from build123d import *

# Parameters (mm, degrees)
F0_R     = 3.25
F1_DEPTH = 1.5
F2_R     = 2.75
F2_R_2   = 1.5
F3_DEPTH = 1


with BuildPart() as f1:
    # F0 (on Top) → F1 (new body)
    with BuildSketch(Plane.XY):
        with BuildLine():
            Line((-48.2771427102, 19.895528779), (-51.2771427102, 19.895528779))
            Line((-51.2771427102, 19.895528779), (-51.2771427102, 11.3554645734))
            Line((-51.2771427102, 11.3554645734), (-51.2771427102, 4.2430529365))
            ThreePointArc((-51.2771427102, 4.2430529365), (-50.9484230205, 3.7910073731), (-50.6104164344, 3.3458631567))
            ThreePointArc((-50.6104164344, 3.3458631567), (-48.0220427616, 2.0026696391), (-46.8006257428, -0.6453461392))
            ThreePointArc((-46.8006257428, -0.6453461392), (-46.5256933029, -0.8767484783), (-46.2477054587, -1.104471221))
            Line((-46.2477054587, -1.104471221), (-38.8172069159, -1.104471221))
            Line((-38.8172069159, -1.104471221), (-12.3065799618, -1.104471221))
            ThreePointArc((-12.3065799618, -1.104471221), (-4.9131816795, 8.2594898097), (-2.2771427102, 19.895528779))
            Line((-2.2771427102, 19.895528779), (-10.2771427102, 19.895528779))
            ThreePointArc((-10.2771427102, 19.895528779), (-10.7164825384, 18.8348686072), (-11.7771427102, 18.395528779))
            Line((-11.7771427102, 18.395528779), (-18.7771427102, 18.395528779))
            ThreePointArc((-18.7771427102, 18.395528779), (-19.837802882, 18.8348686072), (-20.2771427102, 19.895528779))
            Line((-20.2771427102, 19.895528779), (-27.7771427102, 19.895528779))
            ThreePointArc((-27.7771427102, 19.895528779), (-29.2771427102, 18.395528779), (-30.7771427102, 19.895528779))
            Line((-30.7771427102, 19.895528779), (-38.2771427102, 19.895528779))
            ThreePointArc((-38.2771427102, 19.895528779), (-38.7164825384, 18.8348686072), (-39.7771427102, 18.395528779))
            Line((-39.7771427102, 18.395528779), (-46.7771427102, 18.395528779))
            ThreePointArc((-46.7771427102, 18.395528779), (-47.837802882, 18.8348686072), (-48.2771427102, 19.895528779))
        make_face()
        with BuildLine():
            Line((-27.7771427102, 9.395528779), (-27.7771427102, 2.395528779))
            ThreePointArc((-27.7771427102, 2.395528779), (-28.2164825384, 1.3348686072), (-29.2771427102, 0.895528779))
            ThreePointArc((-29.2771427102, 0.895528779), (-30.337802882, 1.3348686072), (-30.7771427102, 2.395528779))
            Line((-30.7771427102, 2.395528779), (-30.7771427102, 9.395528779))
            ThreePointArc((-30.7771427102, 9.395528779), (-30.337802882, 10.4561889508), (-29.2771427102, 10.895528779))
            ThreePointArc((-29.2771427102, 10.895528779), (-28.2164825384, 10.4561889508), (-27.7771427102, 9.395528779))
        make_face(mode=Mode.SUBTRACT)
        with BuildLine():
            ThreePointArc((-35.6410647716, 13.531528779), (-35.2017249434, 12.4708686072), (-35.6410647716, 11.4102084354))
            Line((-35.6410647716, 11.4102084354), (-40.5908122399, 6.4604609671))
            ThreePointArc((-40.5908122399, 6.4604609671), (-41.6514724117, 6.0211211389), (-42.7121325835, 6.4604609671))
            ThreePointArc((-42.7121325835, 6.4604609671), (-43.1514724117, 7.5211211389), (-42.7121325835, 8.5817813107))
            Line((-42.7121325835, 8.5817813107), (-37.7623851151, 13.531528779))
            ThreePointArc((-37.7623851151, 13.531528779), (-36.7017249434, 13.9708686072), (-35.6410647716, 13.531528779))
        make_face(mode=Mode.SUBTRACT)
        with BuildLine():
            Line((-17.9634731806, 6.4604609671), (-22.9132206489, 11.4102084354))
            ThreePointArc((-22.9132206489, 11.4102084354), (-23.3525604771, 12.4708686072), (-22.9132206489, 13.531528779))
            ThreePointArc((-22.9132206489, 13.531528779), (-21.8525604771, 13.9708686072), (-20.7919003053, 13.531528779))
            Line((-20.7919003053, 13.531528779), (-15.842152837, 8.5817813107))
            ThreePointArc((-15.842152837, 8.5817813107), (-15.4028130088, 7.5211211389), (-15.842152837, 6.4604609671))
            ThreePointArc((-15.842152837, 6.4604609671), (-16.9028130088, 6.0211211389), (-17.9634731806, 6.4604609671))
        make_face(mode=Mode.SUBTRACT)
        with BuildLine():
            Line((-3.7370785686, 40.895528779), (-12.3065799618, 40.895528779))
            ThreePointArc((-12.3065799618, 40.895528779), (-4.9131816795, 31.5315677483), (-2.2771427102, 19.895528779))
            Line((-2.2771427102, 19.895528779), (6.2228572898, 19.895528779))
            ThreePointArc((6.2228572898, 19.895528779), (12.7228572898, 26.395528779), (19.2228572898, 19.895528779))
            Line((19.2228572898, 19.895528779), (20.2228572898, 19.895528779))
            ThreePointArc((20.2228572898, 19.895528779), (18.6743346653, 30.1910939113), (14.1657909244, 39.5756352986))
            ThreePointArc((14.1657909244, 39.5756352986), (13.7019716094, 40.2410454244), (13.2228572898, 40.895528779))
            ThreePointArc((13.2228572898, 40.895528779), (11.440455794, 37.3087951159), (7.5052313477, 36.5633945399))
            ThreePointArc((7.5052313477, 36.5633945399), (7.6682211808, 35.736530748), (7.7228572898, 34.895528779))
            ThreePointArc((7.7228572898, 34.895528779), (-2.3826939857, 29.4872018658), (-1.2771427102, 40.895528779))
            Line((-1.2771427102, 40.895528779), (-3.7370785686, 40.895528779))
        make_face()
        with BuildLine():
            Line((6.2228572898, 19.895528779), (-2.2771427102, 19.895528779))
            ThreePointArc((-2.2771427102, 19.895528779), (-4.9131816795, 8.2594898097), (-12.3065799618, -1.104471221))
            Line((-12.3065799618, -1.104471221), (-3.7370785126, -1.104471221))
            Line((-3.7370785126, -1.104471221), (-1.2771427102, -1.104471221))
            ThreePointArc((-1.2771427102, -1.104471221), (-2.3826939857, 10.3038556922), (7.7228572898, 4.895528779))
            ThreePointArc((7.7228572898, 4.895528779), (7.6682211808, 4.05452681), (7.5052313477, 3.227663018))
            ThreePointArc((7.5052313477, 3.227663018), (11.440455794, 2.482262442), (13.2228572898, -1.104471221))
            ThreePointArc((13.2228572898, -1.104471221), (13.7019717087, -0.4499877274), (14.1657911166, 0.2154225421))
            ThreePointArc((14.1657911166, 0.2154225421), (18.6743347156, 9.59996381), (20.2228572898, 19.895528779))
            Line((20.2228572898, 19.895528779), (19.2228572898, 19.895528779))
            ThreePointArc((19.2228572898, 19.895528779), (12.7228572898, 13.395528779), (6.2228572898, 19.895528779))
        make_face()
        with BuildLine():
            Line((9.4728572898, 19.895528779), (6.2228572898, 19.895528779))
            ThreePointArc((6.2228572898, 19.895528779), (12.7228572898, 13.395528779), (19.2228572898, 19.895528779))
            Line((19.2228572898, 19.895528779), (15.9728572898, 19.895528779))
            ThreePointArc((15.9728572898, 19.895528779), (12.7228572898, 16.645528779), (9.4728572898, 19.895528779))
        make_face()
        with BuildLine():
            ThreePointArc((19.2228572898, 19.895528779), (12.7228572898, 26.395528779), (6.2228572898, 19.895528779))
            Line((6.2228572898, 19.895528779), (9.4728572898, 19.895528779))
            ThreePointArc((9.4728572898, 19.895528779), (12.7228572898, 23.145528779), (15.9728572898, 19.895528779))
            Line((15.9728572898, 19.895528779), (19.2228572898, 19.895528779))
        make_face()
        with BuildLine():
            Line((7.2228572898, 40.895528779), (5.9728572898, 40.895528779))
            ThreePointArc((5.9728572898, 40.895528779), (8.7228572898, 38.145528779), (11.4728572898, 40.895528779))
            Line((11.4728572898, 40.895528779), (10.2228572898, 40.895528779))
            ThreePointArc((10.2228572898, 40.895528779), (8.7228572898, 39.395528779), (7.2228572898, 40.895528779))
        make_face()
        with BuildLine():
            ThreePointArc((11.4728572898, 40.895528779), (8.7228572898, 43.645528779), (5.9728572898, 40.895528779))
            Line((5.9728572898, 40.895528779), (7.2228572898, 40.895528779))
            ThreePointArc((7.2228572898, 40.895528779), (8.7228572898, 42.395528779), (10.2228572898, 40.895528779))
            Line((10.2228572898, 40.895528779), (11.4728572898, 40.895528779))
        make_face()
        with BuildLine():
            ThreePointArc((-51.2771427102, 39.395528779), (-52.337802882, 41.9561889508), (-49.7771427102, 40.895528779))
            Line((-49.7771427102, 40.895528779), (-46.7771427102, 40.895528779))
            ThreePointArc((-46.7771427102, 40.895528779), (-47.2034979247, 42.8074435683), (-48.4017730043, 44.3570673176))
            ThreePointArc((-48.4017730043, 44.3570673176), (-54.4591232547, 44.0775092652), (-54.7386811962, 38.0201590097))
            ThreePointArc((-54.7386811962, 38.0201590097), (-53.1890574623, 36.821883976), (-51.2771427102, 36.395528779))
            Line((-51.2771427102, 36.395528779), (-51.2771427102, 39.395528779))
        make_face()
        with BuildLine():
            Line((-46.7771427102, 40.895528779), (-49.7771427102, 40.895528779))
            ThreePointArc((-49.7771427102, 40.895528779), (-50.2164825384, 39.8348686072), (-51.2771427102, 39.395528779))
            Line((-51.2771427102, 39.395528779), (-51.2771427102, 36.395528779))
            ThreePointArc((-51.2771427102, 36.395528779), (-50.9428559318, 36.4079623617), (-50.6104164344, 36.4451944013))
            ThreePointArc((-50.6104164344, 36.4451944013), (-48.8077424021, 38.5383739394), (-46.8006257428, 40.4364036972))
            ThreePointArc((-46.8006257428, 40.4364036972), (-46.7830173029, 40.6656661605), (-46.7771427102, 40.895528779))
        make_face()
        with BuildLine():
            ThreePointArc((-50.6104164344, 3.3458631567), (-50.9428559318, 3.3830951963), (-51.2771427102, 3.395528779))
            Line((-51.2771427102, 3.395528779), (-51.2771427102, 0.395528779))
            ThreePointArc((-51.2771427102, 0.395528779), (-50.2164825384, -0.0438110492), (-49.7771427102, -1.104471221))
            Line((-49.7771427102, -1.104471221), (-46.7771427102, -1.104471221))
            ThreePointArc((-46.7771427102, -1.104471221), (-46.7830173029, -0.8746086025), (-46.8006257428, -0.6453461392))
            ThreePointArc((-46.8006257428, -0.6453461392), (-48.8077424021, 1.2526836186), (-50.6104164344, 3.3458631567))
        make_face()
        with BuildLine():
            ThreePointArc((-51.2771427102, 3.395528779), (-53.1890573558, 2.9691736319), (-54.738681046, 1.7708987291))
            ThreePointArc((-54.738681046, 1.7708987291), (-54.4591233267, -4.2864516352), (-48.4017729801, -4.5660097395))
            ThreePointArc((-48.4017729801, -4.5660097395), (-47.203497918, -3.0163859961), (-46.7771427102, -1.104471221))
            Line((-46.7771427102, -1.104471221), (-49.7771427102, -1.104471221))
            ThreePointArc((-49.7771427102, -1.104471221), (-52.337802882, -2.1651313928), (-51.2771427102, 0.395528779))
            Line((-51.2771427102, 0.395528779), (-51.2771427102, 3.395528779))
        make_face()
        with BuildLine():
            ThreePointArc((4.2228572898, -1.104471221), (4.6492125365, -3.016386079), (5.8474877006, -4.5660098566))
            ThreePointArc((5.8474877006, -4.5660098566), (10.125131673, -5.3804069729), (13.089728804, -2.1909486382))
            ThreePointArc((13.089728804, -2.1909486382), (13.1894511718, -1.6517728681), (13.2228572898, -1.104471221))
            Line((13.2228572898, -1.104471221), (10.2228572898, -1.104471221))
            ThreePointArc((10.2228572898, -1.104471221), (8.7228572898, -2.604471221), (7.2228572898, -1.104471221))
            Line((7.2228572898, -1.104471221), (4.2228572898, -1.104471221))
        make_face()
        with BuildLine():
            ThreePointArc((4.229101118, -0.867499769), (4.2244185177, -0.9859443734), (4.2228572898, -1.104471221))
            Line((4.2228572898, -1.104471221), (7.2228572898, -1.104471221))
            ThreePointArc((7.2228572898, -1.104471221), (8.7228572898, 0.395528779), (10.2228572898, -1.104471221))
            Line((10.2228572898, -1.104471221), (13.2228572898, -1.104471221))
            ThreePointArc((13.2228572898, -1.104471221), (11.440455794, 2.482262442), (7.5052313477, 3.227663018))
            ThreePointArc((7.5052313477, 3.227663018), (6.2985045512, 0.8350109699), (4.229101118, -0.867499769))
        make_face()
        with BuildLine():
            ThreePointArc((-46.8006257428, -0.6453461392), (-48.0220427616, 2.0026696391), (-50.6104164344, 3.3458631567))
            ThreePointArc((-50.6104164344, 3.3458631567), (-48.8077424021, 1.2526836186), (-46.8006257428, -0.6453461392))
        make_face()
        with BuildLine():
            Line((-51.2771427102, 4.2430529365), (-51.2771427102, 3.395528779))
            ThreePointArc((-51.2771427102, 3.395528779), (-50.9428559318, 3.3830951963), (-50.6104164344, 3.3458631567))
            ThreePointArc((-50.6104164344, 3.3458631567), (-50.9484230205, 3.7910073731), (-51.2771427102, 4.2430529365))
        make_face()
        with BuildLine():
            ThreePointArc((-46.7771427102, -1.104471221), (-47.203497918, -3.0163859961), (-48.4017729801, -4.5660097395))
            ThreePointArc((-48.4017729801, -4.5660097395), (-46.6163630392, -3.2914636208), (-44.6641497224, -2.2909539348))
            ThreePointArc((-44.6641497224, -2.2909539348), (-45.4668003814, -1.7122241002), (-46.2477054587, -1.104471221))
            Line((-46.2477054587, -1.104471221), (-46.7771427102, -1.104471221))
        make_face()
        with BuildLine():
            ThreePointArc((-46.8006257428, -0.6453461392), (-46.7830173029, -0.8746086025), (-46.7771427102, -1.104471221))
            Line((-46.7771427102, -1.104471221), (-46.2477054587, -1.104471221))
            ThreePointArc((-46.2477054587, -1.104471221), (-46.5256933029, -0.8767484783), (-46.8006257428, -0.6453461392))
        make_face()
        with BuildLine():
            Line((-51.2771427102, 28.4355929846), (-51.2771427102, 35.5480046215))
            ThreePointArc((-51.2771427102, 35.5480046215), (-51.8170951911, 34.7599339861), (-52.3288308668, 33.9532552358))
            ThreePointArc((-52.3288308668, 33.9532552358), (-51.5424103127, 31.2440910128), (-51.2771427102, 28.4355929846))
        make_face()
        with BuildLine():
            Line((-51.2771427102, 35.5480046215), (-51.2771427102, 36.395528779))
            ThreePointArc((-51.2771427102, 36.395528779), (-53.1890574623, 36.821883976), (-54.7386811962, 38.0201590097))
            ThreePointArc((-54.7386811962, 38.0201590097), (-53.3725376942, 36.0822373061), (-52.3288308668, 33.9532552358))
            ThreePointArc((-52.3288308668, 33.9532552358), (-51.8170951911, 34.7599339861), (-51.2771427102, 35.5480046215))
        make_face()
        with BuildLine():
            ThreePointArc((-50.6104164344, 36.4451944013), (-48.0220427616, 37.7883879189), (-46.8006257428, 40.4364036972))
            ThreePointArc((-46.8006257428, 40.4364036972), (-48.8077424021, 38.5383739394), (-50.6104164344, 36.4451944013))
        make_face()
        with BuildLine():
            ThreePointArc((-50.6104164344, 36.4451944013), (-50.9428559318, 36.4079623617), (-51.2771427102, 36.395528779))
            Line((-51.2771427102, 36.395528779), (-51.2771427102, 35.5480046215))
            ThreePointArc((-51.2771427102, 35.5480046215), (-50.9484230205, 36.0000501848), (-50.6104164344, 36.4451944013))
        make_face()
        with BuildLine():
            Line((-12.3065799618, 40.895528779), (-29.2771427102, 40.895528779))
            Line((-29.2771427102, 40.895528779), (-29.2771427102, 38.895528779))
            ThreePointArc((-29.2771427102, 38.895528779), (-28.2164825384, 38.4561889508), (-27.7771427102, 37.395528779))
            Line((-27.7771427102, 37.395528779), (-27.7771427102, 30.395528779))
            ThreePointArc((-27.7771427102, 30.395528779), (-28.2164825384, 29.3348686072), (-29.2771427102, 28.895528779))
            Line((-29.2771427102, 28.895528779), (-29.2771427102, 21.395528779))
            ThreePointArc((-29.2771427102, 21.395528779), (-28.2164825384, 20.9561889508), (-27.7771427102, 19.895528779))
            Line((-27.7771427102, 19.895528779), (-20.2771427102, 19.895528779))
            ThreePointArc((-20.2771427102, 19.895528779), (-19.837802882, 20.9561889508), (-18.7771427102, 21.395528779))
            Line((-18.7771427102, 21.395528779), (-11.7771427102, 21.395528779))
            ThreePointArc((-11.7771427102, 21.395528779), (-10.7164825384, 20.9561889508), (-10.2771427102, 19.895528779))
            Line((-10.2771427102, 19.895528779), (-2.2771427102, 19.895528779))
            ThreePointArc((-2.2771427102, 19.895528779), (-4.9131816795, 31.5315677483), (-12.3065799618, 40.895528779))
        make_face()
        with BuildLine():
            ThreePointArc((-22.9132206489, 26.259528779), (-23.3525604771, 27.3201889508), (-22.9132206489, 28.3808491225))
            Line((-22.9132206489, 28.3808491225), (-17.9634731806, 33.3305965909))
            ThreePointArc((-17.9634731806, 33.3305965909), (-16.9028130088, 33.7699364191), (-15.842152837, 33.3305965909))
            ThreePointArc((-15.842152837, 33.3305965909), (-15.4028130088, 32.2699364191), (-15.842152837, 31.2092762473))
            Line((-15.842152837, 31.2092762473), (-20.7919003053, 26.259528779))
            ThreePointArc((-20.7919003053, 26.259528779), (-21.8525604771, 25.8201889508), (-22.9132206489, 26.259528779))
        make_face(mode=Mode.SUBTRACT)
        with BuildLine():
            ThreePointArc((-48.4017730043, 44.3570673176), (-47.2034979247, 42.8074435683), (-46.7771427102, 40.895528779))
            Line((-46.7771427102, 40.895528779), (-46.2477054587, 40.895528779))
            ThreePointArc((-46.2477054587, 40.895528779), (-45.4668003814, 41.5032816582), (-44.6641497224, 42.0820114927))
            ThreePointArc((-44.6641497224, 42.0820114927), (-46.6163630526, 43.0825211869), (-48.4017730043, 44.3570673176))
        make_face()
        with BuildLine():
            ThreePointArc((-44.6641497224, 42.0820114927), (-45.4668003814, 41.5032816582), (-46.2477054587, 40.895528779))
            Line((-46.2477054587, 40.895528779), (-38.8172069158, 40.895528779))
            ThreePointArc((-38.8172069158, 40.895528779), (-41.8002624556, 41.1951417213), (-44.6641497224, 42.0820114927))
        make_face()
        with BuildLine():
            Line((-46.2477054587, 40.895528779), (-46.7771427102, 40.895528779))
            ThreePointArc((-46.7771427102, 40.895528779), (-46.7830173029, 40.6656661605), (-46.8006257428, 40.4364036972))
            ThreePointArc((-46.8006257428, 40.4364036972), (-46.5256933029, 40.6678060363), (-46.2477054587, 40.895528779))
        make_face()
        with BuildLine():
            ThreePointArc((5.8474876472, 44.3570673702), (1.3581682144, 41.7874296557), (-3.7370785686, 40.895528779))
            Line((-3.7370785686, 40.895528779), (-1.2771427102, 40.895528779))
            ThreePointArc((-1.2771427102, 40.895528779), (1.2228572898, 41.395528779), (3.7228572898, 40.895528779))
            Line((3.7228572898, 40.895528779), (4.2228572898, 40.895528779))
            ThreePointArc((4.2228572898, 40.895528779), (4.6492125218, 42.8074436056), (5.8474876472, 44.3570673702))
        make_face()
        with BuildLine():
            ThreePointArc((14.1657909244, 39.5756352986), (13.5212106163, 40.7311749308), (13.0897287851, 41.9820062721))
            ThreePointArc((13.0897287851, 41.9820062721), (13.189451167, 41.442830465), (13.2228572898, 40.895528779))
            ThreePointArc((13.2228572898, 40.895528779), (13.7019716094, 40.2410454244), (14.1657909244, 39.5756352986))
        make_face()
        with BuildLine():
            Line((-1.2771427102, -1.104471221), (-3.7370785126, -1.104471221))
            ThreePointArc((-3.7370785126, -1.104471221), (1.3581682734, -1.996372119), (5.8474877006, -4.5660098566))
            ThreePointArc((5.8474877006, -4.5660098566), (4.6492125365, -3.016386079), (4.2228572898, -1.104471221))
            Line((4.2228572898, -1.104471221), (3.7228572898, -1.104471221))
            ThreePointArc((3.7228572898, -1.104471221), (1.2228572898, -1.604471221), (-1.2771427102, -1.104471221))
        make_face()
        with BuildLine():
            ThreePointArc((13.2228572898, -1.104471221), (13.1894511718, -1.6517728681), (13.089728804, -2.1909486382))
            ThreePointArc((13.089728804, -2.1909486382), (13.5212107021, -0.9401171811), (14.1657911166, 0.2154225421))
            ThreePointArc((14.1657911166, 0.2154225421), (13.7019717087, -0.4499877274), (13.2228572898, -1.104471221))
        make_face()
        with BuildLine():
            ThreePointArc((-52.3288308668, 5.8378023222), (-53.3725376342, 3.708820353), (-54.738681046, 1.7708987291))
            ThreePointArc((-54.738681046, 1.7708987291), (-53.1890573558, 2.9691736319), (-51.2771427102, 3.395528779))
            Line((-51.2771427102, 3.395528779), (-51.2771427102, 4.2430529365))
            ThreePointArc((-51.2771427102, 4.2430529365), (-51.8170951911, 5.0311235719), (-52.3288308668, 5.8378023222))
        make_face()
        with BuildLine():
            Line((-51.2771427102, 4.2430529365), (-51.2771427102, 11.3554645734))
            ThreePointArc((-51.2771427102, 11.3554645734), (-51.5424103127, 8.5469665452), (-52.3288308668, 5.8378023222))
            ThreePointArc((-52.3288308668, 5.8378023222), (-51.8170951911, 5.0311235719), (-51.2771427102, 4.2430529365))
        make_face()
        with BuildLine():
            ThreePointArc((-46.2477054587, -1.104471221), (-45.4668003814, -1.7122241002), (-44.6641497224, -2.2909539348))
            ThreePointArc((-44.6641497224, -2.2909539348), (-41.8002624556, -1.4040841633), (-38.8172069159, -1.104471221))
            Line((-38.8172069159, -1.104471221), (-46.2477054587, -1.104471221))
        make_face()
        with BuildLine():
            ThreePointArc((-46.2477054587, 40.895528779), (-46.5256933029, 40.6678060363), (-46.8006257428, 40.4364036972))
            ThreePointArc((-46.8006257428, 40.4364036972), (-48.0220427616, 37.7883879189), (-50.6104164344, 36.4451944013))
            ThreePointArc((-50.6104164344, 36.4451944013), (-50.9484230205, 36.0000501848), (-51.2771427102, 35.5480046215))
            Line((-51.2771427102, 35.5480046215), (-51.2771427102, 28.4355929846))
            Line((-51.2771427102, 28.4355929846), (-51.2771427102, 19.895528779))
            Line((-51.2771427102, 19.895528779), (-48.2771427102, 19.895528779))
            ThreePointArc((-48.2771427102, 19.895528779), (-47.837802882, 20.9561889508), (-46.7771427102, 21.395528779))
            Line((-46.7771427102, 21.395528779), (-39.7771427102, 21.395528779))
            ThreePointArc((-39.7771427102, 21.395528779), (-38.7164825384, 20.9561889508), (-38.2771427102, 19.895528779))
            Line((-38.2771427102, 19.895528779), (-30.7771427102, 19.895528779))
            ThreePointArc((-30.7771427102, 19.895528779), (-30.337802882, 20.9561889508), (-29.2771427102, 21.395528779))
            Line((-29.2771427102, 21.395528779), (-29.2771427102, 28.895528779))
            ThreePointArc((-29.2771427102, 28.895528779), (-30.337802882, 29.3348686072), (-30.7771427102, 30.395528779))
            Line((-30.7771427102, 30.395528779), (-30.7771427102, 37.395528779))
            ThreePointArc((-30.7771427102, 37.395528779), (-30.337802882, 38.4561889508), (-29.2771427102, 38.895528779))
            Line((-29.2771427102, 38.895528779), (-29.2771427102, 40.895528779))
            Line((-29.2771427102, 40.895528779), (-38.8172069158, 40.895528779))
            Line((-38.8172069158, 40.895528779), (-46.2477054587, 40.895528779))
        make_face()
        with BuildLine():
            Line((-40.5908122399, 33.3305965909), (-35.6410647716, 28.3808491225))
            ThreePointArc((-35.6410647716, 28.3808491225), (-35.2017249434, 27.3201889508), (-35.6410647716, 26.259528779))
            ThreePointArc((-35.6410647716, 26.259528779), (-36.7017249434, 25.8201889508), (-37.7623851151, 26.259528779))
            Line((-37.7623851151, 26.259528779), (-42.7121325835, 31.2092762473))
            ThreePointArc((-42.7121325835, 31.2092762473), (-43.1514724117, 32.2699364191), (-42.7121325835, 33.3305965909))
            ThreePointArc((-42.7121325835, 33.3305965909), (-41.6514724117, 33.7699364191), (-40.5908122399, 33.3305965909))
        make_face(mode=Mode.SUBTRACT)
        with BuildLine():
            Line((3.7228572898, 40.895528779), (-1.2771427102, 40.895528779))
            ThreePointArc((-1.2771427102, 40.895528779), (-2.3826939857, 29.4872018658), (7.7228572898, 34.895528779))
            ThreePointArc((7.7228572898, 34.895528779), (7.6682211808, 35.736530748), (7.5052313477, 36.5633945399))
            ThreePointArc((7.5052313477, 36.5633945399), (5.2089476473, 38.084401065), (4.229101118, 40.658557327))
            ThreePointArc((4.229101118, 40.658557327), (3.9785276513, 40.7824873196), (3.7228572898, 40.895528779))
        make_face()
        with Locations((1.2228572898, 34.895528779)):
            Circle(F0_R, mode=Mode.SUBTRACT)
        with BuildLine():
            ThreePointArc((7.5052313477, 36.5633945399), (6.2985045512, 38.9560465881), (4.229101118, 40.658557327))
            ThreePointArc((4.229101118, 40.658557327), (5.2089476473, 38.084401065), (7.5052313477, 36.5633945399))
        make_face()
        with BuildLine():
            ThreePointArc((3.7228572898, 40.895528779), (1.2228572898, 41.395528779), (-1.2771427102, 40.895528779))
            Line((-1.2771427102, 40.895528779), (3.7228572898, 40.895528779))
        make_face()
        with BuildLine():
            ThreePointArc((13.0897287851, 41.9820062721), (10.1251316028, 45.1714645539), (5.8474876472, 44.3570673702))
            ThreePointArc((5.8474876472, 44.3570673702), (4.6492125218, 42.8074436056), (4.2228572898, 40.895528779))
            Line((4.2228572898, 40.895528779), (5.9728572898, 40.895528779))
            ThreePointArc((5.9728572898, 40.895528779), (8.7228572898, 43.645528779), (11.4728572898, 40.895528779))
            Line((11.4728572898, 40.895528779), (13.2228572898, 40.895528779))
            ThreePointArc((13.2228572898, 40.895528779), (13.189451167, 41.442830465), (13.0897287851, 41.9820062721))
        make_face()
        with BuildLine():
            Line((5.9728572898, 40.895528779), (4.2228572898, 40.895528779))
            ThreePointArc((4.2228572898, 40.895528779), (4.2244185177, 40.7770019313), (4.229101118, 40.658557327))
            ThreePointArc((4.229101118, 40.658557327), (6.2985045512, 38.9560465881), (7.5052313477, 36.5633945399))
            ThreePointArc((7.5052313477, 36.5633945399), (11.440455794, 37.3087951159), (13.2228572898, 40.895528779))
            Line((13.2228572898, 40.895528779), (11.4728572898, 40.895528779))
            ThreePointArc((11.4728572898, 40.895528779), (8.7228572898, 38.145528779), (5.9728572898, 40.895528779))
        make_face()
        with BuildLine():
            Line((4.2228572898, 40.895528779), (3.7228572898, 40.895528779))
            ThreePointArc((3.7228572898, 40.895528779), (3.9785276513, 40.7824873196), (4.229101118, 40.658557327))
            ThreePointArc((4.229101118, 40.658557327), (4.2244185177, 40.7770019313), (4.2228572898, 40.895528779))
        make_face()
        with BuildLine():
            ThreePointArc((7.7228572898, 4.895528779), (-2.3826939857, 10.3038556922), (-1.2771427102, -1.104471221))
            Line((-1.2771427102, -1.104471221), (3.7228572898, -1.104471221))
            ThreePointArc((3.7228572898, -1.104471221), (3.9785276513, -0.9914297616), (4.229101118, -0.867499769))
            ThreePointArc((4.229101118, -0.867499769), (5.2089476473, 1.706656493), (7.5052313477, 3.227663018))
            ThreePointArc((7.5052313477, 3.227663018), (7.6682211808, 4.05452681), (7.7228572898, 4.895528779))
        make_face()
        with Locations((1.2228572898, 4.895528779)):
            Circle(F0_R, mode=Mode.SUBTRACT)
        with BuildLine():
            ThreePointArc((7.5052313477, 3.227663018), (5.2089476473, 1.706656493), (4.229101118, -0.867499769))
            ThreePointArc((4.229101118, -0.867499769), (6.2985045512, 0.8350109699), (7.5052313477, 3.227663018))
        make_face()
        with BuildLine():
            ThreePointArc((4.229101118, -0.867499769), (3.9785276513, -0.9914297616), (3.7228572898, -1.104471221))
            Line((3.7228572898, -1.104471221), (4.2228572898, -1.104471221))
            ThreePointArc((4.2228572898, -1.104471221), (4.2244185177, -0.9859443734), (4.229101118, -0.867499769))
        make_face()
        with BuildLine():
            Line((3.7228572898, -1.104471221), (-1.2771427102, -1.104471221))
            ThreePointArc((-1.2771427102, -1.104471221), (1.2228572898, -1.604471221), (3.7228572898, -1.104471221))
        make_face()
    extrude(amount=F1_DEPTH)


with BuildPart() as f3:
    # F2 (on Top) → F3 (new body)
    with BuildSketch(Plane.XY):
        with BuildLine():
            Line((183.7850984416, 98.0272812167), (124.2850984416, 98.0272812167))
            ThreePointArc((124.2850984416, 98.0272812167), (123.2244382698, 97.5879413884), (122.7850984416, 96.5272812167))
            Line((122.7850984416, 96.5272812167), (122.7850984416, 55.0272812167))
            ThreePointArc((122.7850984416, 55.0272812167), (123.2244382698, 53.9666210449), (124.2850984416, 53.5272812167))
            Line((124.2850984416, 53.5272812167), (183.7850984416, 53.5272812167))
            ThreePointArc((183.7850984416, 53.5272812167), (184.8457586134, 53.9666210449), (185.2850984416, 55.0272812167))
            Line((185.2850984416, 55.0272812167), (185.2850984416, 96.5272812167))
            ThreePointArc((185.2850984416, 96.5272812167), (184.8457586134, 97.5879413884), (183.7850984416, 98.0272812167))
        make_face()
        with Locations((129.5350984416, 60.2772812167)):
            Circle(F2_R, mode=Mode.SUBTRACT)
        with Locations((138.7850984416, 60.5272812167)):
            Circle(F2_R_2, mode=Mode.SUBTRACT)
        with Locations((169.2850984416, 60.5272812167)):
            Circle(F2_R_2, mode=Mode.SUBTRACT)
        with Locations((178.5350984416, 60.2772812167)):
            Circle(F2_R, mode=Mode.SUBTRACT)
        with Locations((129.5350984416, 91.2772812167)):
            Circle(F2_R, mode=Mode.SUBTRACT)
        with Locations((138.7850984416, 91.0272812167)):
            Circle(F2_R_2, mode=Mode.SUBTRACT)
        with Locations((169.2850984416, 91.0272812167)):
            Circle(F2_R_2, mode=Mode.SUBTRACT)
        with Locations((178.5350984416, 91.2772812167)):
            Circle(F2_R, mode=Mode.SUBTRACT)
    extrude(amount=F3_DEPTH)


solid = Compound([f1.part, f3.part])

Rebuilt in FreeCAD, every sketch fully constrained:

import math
import FreeCAD as App
import Part
import Sketcher
from FreeCAD import Vector
Q = App.Units.Quantity

doc = App.newDocument("Part")
body = doc.addObject("PartDesign::Body", "Body")

sketch1 = body.newObject("Sketcher::SketchObject", "Sketch")
sketch1.AttachmentSupport = (doc.getObject("XY_Plane"), [""])
sketch1.MapMode = "FlatFace"
sketch1.addGeometry([
    Part.ArcOfCircle(Part.Circle(Vector(-3.7, 55.9, 0), Vector(0, 0, 1), 15), math.radians(-90), math.radians(-50)),
    Part.LineSegment(Vector(-3.7, 40.9, 0), Vector(-38.8, 40.9, 0)),
    Part.ArcOfCircle(Part.Circle(Vector(-38.8, 55.9, 0), Vector(0, 0, 1), 15), math.radians(-113), math.radians(-90)),
    Part.ArcOfCircle(Part.Circle(Vector(-38.8, 55.9, 0), Vector(0, 0, 1), 15), math.radians(-129.72), math.radians(-112.94)),
    Part.ArcOfCircle(Part.Circle(Vector(-51.3, 40.9, 0), Vector(0, 0, 1), 4.5), math.radians(50), math.radians(220)),
    Part.ArcOfCircle(Part.Circle(Vector(-66.3, 28.4, 0), Vector(0, 0, 1), 15), math.radians(21.58), math.radians(39.72)),
    Part.ArcOfCircle(Part.Circle(Vector(-66.3, 28.4, 0), Vector(0, 0, 1), 15), math.radians(0), math.radians(22)),
    Part.LineSegment(Vector(-51.3, 28.4, 0), Vector(-51.3, 11.4, 0)),
    Part.ArcOfCircle(Part.Circle(Vector(-66.3, 11.4, 0), Vector(0, 0, 1), 15), math.radians(-22), math.radians(0)),
    Part.ArcOfCircle(Part.Circle(Vector(-66.3, 11.4, 0), Vector(0, 0, 1), 15), math.radians(-39.72), math.radians(-21.58)),
    Part.ArcOfCircle(Part.Circle(Vector(-51.3, -1.1, 0), Vector(0, 0, 1), 4.5), math.radians(140), math.radians(310)),
    Part.ArcOfCircle(Part.Circle(Vector(-38.8, -16.1, 0), Vector(0, 0, 1), 15), math.radians(112.94), math.radians(129.72)),
    Part.ArcOfCircle(Part.Circle(Vector(-38.8, -16.1, 0), Vector(0, 0, 1), 15), math.radians(90), math.radians(113)),
    Part.LineSegment(Vector(-38.8, -1.1, 0), Vector(-3.7, -1.1, 0)),
    Part.ArcOfCircle(Part.Circle(Vector(-3.7, -16.1, 0), Vector(0, 0, 1), 15), math.radians(50), math.radians(90)),
    Part.ArcOfCircle(Part.Circle(Vector(8.7, -1.1, 0), Vector(0, 0, 1), 4.5), math.radians(-130), math.radians(-14)),
    Part.ArcOfCircle(Part.Circle(Vector(20.4, -4, 0), Vector(0, 0, 1), 7.5), math.radians(146), math.radians(166)),
    Part.ArcOfCircle(Part.Circle(Vector(-14.8, 19.9, 0), Vector(0, 0, 1), 35), math.radians(-34), math.radians(0)),
    Part.ArcOfCircle(Part.Circle(Vector(-14.8, 19.9, 0), Vector(0, 0, 1), 35), math.radians(0), math.radians(34)),
    Part.ArcOfCircle(Part.Circle(Vector(20.4, 43.8, 0), Vector(0, 0, 1), 7.5), math.radians(-166), math.radians(-146)),
    Part.ArcOfCircle(Part.Circle(Vector(8.7, 40.9, 0), Vector(0, 0, 1), 4.5), math.radians(14), math.radians(130)),
    Part.ArcOfCircle(Part.Circle(Vector(-51.3, -1.1, 0), Vector(0, 0, 1), 1.5), math.radians(90), math.radians(360)),
    Part.ArcOfCircle(Part.Circle(Vector(-51.3, -1.1, 0), Vector(0, 0, 1), 1.5), math.radians(0), math.radians(90)),
    Part.ArcOfCircle(Part.Circle(Vector(-29.3, 9.4, 0), Vector(0, 0, 1), 1.5), math.radians(0), math.radians(90)),
    Part.LineSegment(Vector(-27.8, 9.4, 0), Vector(-27.8, 2.4, 0)),
    Part.ArcOfCircle(Part.Circle(Vector(-29.3, 2.4, 0), Vector(0, 0, 1), 1.5), math.radians(-90), math.radians(0)),
    Part.ArcOfCircle(Part.Circle(Vector(-29.3, 2.4, 0), Vector(0, 0, 1), 1.5), math.radians(180), math.radians(270)),
    Part.LineSegment(Vector(-30.8, 2.4, 0), Vector(-30.8, 9.4, 0)),
    Part.ArcOfCircle(Part.Circle(Vector(-29.3, 9.4, 0), Vector(0, 0, 1), 1.5), math.radians(90), math.radians(180)),
    Part.ArcOfCircle(Part.Circle(Vector(-36.7, 12.5, 0), Vector(0, 0, 1), 1.5), math.radians(45), math.radians(135)),
    Part.ArcOfCircle(Part.Circle(Vector(-36.7, 12.5, 0), Vector(0, 0, 1), 1.5), math.radians(-45), math.radians(45)),
    Part.LineSegment(Vector(-35.6, 11.4, 0), Vector(-40.6, 6.5, 0)),
    Part.ArcOfCircle(Part.Circle(Vector(-41.7, 7.5, 0), Vector(0, 0, 1), 1.5), math.radians(-135), math.radians(-45)),
    Part.ArcOfCircle(Part.Circle(Vector(-41.7, 7.5, 0), Vector(0, 0, 1), 1.5), math.radians(135), math.radians(225)),
    Part.LineSegment(Vector(-42.7, 8.6, 0), Vector(-37.8, 13.5, 0)),
    Part.ArcOfCircle(Part.Circle(Vector(-39.8, 19.9, 0), Vector(0, 0, 1), 1.5), math.radians(-90), math.radians(0)),
    Part.LineSegment(Vector(-39.8, 18.4, 0), Vector(-46.8, 18.4, 0)),
    Part.ArcOfCircle(Part.Circle(Vector(-46.8, 19.9, 0), Vector(0, 0, 1), 1.5), math.radians(180), math.radians(270)),
    Part.ArcOfCircle(Part.Circle(Vector(-46.8, 19.9, 0), Vector(0, 0, 1), 1.5), math.radians(90), math.radians(180)),
    Part.LineSegment(Vector(-46.8, 21.4, 0), Vector(-39.8, 21.4, 0)),
    Part.ArcOfCircle(Part.Circle(Vector(-39.8, 19.9, 0), Vector(0, 0, 1), 1.5), math.radians(0), math.radians(90)),
    Part.ArcOfCircle(Part.Circle(Vector(-16.9, 7.5, 0), Vector(0, 0, 1), 1.5), math.radians(-135), math.radians(-45)),
    Part.LineSegment(Vector(-18, 6.5, 0), Vector(-22.9, 11.4, 0)),
    Part.ArcOfCircle(Part.Circle(Vector(-21.9, 12.5, 0), Vector(0, 0, 1), 1.5), math.radians(135), math.radians(225)),
    Part.ArcOfCircle(Part.Circle(Vector(-21.9, 12.5, 0), Vector(0, 0, 1), 1.5), math.radians(45), math.radians(135)),
    Part.LineSegment(Vector(-20.8, 13.5, 0), Vector(-15.8, 8.6, 0)),
    Part.ArcOfCircle(Part.Circle(Vector(-16.9, 7.5, 0), Vector(0, 0, 1), 1.5), math.radians(-45), math.radians(45)),
    Part.ArcOfCircle(Part.Circle(Vector(-29.3, 19.9, 0), Vector(0, 0, 1), 1.5), math.radians(0), math.radians(90)),
    Part.ArcOfCircle(Part.Circle(Vector(-29.3, 19.9, 0), Vector(0, 0, 1), 1.5), math.radians(180), math.radians(360)),
    Part.ArcOfCircle(Part.Circle(Vector(-29.3, 19.9, 0), Vector(0, 0, 1), 1.5), math.radians(90), math.radians(180)),
    Part.Circle(Vector(8.7, -1.1, 0), Vector(0, 0, 1), 1.5),
    Part.Circle(Vector(1.2, 4.9, 0), Vector(0, 0, 1), 3.2),
    Part.ArcOfCircle(Part.Circle(Vector(-11.8, 19.9, 0), Vector(0, 0, 1), 1.5), math.radians(-90), math.radians(0)),
    Part.LineSegment(Vector(-11.8, 18.4, 0), Vector(-18.8, 18.4, 0)),
    Part.ArcOfCircle(Part.Circle(Vector(-18.8, 19.9, 0), Vector(0, 0, 1), 1.5), math.radians(180), math.radians(270)),
    Part.ArcOfCircle(Part.Circle(Vector(-18.8, 19.9, 0), Vector(0, 0, 1), 1.5), math.radians(90), math.radians(180)),
    Part.LineSegment(Vector(-18.8, 21.4, 0), Vector(-11.8, 21.4, 0)),
    Part.ArcOfCircle(Part.Circle(Vector(-11.8, 19.9, 0), Vector(0, 0, 1), 1.5), math.radians(0), math.radians(90)),
    Part.Circle(Vector(12.7, 19.9, 0), Vector(0, 0, 1), 3.2),
    Part.ArcOfCircle(Part.Circle(Vector(-41.7, 32.3, 0), Vector(0, 0, 1), 1.5), math.radians(45), math.radians(135)),
    Part.LineSegment(Vector(-40.6, 33.3, 0), Vector(-35.6, 28.4, 0)),
    Part.ArcOfCircle(Part.Circle(Vector(-36.7, 27.3, 0), Vector(0, 0, 1), 1.5), math.radians(-45), math.radians(45)),
    Part.ArcOfCircle(Part.Circle(Vector(-36.7, 27.3, 0), Vector(0, 0, 1), 1.5), math.radians(-135), math.radians(-45)),
    Part.LineSegment(Vector(-37.8, 26.3, 0), Vector(-42.7, 31.2, 0)),
    Part.ArcOfCircle(Part.Circle(Vector(-41.7, 32.3, 0), Vector(0, 0, 1), 1.5), math.radians(135), math.radians(225)),
    Part.ArcOfCircle(Part.Circle(Vector(-21.9, 27.3, 0), Vector(0, 0, 1), 1.5), math.radians(-135), math.radians(-45)),
    Part.ArcOfCircle(Part.Circle(Vector(-21.9, 27.3, 0), Vector(0, 0, 1), 1.5), math.radians(135), math.radians(225)),
    Part.LineSegment(Vector(-22.9, 28.4, 0), Vector(-18, 33.3, 0)),
    Part.ArcOfCircle(Part.Circle(Vector(-16.9, 32.3, 0), Vector(0, 0, 1), 1.5), math.radians(45), math.radians(135)),
    Part.ArcOfCircle(Part.Circle(Vector(-16.9, 32.3, 0), Vector(0, 0, 1), 1.5), math.radians(-45), math.radians(45)),
    Part.LineSegment(Vector(-15.8, 31.2, 0), Vector(-20.8, 26.3, 0)),
    Part.ArcOfCircle(Part.Circle(Vector(-51.3, 40.9, 0), Vector(0, 0, 1), 1.5), math.radians(0), math.radians(270)),
    Part.ArcOfCircle(Part.Circle(Vector(-51.3, 40.9, 0), Vector(0, 0, 1), 1.5), math.radians(-90), math.radians(0)),
    Part.ArcOfCircle(Part.Circle(Vector(-29.3, 37.4, 0), Vector(0, 0, 1), 1.5), math.radians(0), math.radians(90)),
    Part.LineSegment(Vector(-27.8, 37.4, 0), Vector(-27.8, 30.4, 0)),
    Part.ArcOfCircle(Part.Circle(Vector(-29.3, 30.4, 0), Vector(0, 0, 1), 1.5), math.radians(-90), math.radians(0)),
    Part.ArcOfCircle(Part.Circle(Vector(-29.3, 30.4, 0), Vector(0, 0, 1), 1.5), math.radians(180), math.radians(270)),
    Part.LineSegment(Vector(-30.8, 30.4, 0), Vector(-30.8, 37.4, 0)),
    Part.ArcOfCircle(Part.Circle(Vector(-29.3, 37.4, 0), Vector(0, 0, 1), 1.5), math.radians(90), math.radians(180)),
    Part.Circle(Vector(1.2, 34.9, 0), Vector(0, 0, 1), 3.2),
    Part.Circle(Vector(8.7, 40.9, 0), Vector(0, 0, 1), 1.5),
], False)
sketch1.addConstraint([
    Sketcher.Constraint("Tangent", 0, 1, 1, 1),
    Sketcher.Constraint("Tangent", 1, 2, 2, 2),
    Sketcher.Constraint("Tangent", 2, 1, 3, 2),
    Sketcher.Constraint("Tangent", 3, 1, 4, 1),
    Sketcher.Constraint("Tangent", 4, 2, 5, 2),
    Sketcher.Constraint("Tangent", 5, 1, 6, 2),
    Sketcher.Constraint("Tangent", 6, 1, 7, 1),
    Sketcher.Constraint("Tangent", 7, 2, 8, 2),
    Sketcher.Constraint("Tangent", 8, 1, 9, 2),
    Sketcher.Constraint("Tangent", 9, 1, 10, 1),
    Sketcher.Constraint("Tangent", 10, 2, 11, 2),
    Sketcher.Constraint("Tangent", 11, 1, 12, 2),
    Sketcher.Constraint("Tangent", 12, 1, 13, 1),
    Sketcher.Constraint("Tangent", 13, 2, 14, 2),
    Sketcher.Constraint("Tangent", 14, 1, 15, 1),
    Sketcher.Constraint("Tangent", 15, 2, 16, 2),
    Sketcher.Constraint("Tangent", 16, 1, 17, 1),
    Sketcher.Constraint("Tangent", 17, 2, 18, 1),
    Sketcher.Constraint("Tangent", 18, 2, 19, 2),
    Sketcher.Constraint("Tangent", 19, 1, 20, 1),
    Sketcher.Constraint("Tangent", 20, 2, 0, 2),
    Sketcher.Constraint("Tangent", 21, 1, 22, 2),
    Sketcher.Constraint("Coincident", 22, 1, 21, 2),
    Sketcher.Constraint("Tangent", 23, 1, 24, 1),
    Sketcher.Constraint("Tangent", 24, 2, 25, 2),
    Sketcher.Constraint("Tangent", 25, 1, 26, 2),
    Sketcher.Constraint("Tangent", 26, 1, 27, 1),
    Sketcher.Constraint("Tangent", 27, 2, 28, 2),
    Sketcher.Constraint("Tangent", 28, 1, 23, 2),
    Sketcher.Constraint("Tangent", 29, 1, 30, 2),
    Sketcher.Constraint("Tangent", 30, 1, 31, 1),
    Sketcher.Constraint("Tangent", 31, 2, 32, 2),
    Sketcher.Constraint("Tangent", 32, 1, 33, 2),
    Sketcher.Constraint("Tangent", 33, 1, 34, 1),
    Sketcher.Constraint("Tangent", 34, 2, 29, 2),
    Sketcher.Constraint("Tangent", 35, 1, 36, 1),
    Sketcher.Constraint("Tangent", 36, 2, 37, 2),
    Sketcher.Constraint("Tangent", 37, 1, 38, 2),
    Sketcher.Constraint("Tangent", 38, 1, 39, 1),
    Sketcher.Constraint("Tangent", 39, 2, 40, 2),
    Sketcher.Constraint("Tangent", 40, 1, 35, 2),
    Sketcher.Constraint("Tangent", 41, 1, 42, 1),
    Sketcher.Constraint("Tangent", 42, 2, 43, 2),
    Sketcher.Constraint("Tangent", 43, 1, 44, 2),
    Sketcher.Constraint("Tangent", 44, 1, 45, 1),
    Sketcher.Constraint("Tangent", 45, 2, 46, 2),
    Sketcher.Constraint("Tangent", 46, 1, 41, 2),
    Sketcher.Constraint("Tangent", 47, 1, 48, 2),
    Sketcher.Constraint("Tangent", 48, 1, 49, 2),
    Sketcher.Constraint("Tangent", 49, 1, 47, 2),
    Sketcher.Constraint("Tangent", 52, 1, 53, 1),
    Sketcher.Constraint("Tangent", 53, 2, 54, 2),
    Sketcher.Constraint("Tangent", 54, 1, 55, 2),
    Sketcher.Constraint("Tangent", 55, 1, 56, 1),
    Sketcher.Constraint("Tangent", 56, 2, 57, 2),
    Sketcher.Constraint("Tangent", 57, 1, 52, 2),
    Sketcher.Constraint("Tangent", 59, 1, 60, 1),
    Sketcher.Constraint("Tangent", 60, 2, 61, 2),
    Sketcher.Constraint("Tangent", 61, 1, 62, 2),
    Sketcher.Constraint("Tangent", 62, 1, 63, 1),
    Sketcher.Constraint("Tangent", 63, 2, 64, 2),
    Sketcher.Constraint("Tangent", 64, 1, 59, 2),
    Sketcher.Constraint("Tangent", 65, 1, 66, 2),
    Sketcher.Constraint("Tangent", 66, 1, 67, 1),
    Sketcher.Constraint("Tangent", 67, 2, 68, 2),
    Sketcher.Constraint("Tangent", 68, 1, 69, 2),
    Sketcher.Constraint("Tangent", 69, 1, 70, 1),
    Sketcher.Constraint("Tangent", 70, 2, 65, 2),
    Sketcher.Constraint("Tangent", 71, 1, 72, 2),
    Sketcher.Constraint("Coincident", 72, 1, 71, 2),
    Sketcher.Constraint("Tangent", 73, 1, 74, 1),
    Sketcher.Constraint("Tangent", 74, 2, 75, 2),
    Sketcher.Constraint("Tangent", 75, 1, 76, 2),
    Sketcher.Constraint("Tangent", 76, 1, 77, 1),
    Sketcher.Constraint("Tangent", 77, 2, 78, 2),
    Sketcher.Constraint("Tangent", 78, 1, 73, 2),
    Sketcher.Constraint("Horizontal", 1),
    Sketcher.Constraint("Vertical", 7),
    Sketcher.Constraint("Horizontal", 13),
    Sketcher.Constraint("Vertical", 24),
    Sketcher.Constraint("Vertical", 27),
    Sketcher.Constraint("Horizontal", 36),
    Sketcher.Constraint("Horizontal", 39),
    Sketcher.Constraint("Horizontal", 53),
    Sketcher.Constraint("Horizontal", 56),
    Sketcher.Constraint("Vertical", 74),
    Sketcher.Constraint("Vertical", 77),
    Sketcher.Constraint("Coincident", 21, 3, 10, 3),
    Sketcher.Constraint("Coincident", 50, 3, 15, 3),
    Sketcher.Constraint("Coincident", 71, 3, 4, 3),
    Sketcher.Constraint("Coincident", 80, 3, 20, 3),
    Sketcher.Constraint("Equal", 0, 2),
    Sketcher.Constraint("Equal", 2, 3),
    Sketcher.Constraint("Equal", 3, 5),
    Sketcher.Constraint("Equal", 5, 6),
    Sketcher.Constraint("Equal", 6, 8),
    Sketcher.Constraint("Equal", 8, 9),
    Sketcher.Constraint("Equal", 4, 10),
    Sketcher.Constraint("Equal", 9, 11),
    Sketcher.Constraint("Equal", 11, 12),
    Sketcher.Constraint("Equal", 12, 14),
    Sketcher.Constraint("Equal", 10, 15),
    Sketcher.Constraint("Equal", 17, 18),
    Sketcher.Constraint("Equal", 16, 19),
    Sketcher.Constraint("Equal", 15, 20),
    Sketcher.Constraint("Equal", 22, 23),
    Sketcher.Constraint("Equal", 23, 25),
    Sketcher.Constraint("Equal", 25, 26),
    Sketcher.Constraint("Equal", 28, 29),
    Sketcher.Constraint("Equal", 29, 30),
    Sketcher.Constraint("Equal", 30, 32),
    Sketcher.Constraint("Equal", 32, 33),
    Sketcher.Constraint("Equal", 33, 35),
    Sketcher.Constraint("Equal", 35, 37),
    Sketcher.Constraint("Equal", 37, 38),
    Sketcher.Constraint("Equal", 40, 41),
    Sketcher.Constraint("Equal", 41, 43),
    Sketcher.Constraint("Equal", 43, 44),
    Sketcher.Constraint("Equal", 44, 46),
    Sketcher.Constraint("Equal", 46, 47),
    Sketcher.Constraint("Equal", 49, 50),
    Sketcher.Constraint("Equal", 50, 52),
    Sketcher.Constraint("Equal", 52, 54),
    Sketcher.Constraint("Equal", 54, 55),
    Sketcher.Constraint("Equal", 51, 58),
    Sketcher.Constraint("Equal", 57, 59),
    Sketcher.Constraint("Equal", 59, 61),
    Sketcher.Constraint("Equal", 61, 62),
    Sketcher.Constraint("Equal", 62, 64),
    Sketcher.Constraint("Equal", 64, 65),
    Sketcher.Constraint("Equal", 65, 66),
    Sketcher.Constraint("Equal", 66, 68),
    Sketcher.Constraint("Equal", 68, 69),
    Sketcher.Constraint("Equal", 69, 71),
    Sketcher.Constraint("Equal", 72, 73),
    Sketcher.Constraint("Equal", 73, 75),
    Sketcher.Constraint("Equal", 75, 76),
    Sketcher.Constraint("Equal", 58, 79),
    Sketcher.Constraint("Equal", 78, 80),
    Sketcher.Constraint("Perpendicular", 34, 42),
    Sketcher.Constraint("Parallel", 45, 60),
    Sketcher.Constraint("Perpendicular", 63, 67),
    Sketcher.Constraint("Horizontal", 10, 3, 15, 3),
    Sketcher.Constraint("Horizontal", 4, 3, 20, 3),
    Sketcher.Constraint("Horizontal", 18, 3, 35, 3),
    Sketcher.Constraint("Horizontal", 33, 3, 41, 3),
    Sketcher.Constraint("Horizontal", 30, 3, 43, 3),
    Sketcher.Constraint("Horizontal", 40, 3, 47, 3),
    Sketcher.Constraint("Horizontal", 49, 3, 52, 3),
    Sketcher.Constraint("Horizontal", 57, 3, 58, 3),
    Sketcher.Constraint("Horizontal", 62, 3, 65, 3),
    Sketcher.Constraint("Horizontal", 64, 3, 68, 3),
    Sketcher.Constraint("Horizontal", 80, 3, 0, 1),
    Sketcher.Constraint("Horizontal", 50, 3, 12, 1),
    Sketcher.Constraint("Horizontal", 58, 3, 17, 2),
    Sketcher.Constraint("Horizontal", 13, 2, 22, 1),
    Sketcher.Constraint("Horizontal", 31, 2, 32, 1),
    Sketcher.Constraint("Horizontal", 29, 1, 34, 2),
    Sketcher.Constraint("Horizontal", 17, 2, 37, 1),
    Sketcher.Constraint("Horizontal", 37, 1, 40, 1),
    Sketcher.Constraint("Horizontal", 32, 1, 41, 1),
    Sketcher.Constraint("Horizontal", 34, 2, 43, 1),
    Sketcher.Constraint("Horizontal", 41, 1, 46, 1),
    Sketcher.Constraint("Horizontal", 40, 1, 47, 1),
    Sketcher.Constraint("Horizontal", 47, 1, 48, 1),
    Sketcher.Constraint("Horizontal", 48, 1, 54, 1),
    Sketcher.Constraint("Horizontal", 54, 1, 57, 1),
    Sketcher.Constraint("Horizontal", 61, 1, 62, 1),
    Sketcher.Constraint("Horizontal", 59, 1, 64, 1),
    Sketcher.Constraint("Horizontal", 62, 1, 65, 1),
    Sketcher.Constraint("Horizontal", 67, 2, 68, 1),
    Sketcher.Constraint("Horizontal", 1, 2, 71, 1),
    Sketcher.Constraint("Vertical", 4, 3, 10, 3),
    Sketcher.Constraint("Vertical", 0, 3, 14, 3),
    Sketcher.Constraint("Vertical", 16, 3, 19, 3),
    Sketcher.Constraint("Vertical", 28, 3, 47, 3),
    Sketcher.Constraint("Vertical", 33, 3, 59, 3),
    Sketcher.Constraint("Vertical", 30, 3, 61, 3),
    Sketcher.Constraint("Vertical", 44, 3, 65, 3),
    Sketcher.Constraint("Vertical", 49, 3, 73, 3),
    Sketcher.Constraint("Vertical", 51, 3, 79, 3),
    Sketcher.Constraint("Vertical", 72, 3, 6, 1),
    Sketcher.Constraint("Vertical", 5, 1, 8, 1),
    Sketcher.Constraint("Vertical", 2, 1, 11, 1),
    Sketcher.Constraint("Vertical", 7, 2, 21, 1),
    Sketcher.Constraint("Vertical", 78, 3, 25, 1),
    Sketcher.Constraint("Vertical", 25, 1, 28, 1),
    Sketcher.Constraint("Vertical", 28, 1, 49, 1),
    Sketcher.Constraint("Vertical", 21, 1, 72, 1),
    Sketcher.Constraint("Vertical", 49, 1, 75, 1),
    Sketcher.Constraint("Vertical", 75, 1, 78, 1),
    Sketcher.Constraint("Equal", 39, 53),
    Sketcher.Constraint("Equal", 56, 24),
    Sketcher.Constraint("Equal", 27, 74),
    Sketcher.Constraint("Diameter", 50, Q("3 mm")),
    Sketcher.Constraint("Radius", 0, Q("15 mm")),
    Sketcher.Constraint("Radius", 17, Q("35 mm")),
    Sketcher.Constraint("Diameter", 51, Q("6.5 mm")),
    Sketcher.Constraint("Radius", 4, Q("4.5 mm")),
    Sketcher.Constraint("Radius", 16, Q("7.5 mm")),
    Sketcher.Constraint("DistanceX", 36, 2, 36, 1, Q("7 mm")),
    Sketcher.Constraint("Distance", 31, Q("7 mm")),
    Sketcher.Constraint("DistanceX", 1, 2, 1, 1, Q("35.080128 mm")),
    Sketcher.Constraint("DistanceY", 7, 2, 7, 1, Q("17.080128 mm")),
    Sketcher.Constraint("DistanceY", -1, 1, 19, 3, Q("43.792801 mm")),
    Sketcher.Constraint("DistanceY", -1, 1, 9, 1, Q("1.770899 mm")),
    Sketcher.Constraint("DistanceX", 44, 1, -1, 1, Q("20.7919 mm")),
    Sketcher.Constraint("DistanceX", 0, 3, -1, 1, Q("3.737079 mm")),
    Sketcher.Constraint("DistanceY", -1, 1, 23, 3, Q("9.395529 mm")),
    Sketcher.Constraint("DistanceY", -1, 1, 29, 3, Q("12.470869 mm")),
    Sketcher.Constraint("DistanceY", -1, 1, 51, 3, Q("4.895529 mm")),
    Sketcher.Constraint("DistanceY", -1, 1, 61, 3, Q("27.320189 mm")),
    Sketcher.Constraint("DistanceY", -1, 1, 73, 3, Q("37.395529 mm")),
    Sketcher.Constraint("DistanceY", -1, 1, 79, 3, Q("34.895529 mm")),
    Sketcher.Constraint("DistanceX", 2, 1, -1, 1, Q("44.66415 mm")),
    Sketcher.Constraint("DistanceX", 5, 1, -1, 1, Q("52.328831 mm")),
    Sketcher.Constraint("DistanceX", 23, 3, -1, 1, Q("29.277143 mm")),
    Sketcher.Constraint("DistanceX", 29, 3, -1, 1, Q("36.701725 mm")),
    Sketcher.Constraint("DistanceX", 35, 3, -1, 1, Q("39.777143 mm")),
    Sketcher.Constraint("DistanceX", -1, 1, 51, 3, Q("1.222857 mm")),
    Sketcher.Constraint("DistanceX", 52, 3, -1, 1, Q("11.777143 mm")),
    Sketcher.Constraint("DistanceX", -1, 1, 58, 3, Q("12.722857 mm")),
])
pad1 = body.newObject("PartDesign::Pad", "Pad")
pad1.Profile = sketch1
pad1.Length = 1.5
body2 = doc.addObject("PartDesign::Body", "Body001")

sketch2 = body2.newObject("Sketcher::SketchObject", "Sketch001")
sketch2.AttachmentSupport = (doc.getObject("XY_Plane001"), [""])
sketch2.MapMode = "FlatFace"
sketch2.addGeometry([
    Part.LineSegment(Vector(183.8, 98, 0), Vector(124.3, 98, 0)),
    Part.ArcOfCircle(Part.Circle(Vector(124.3, 96.5, 0), Vector(0, 0, 1), 1.5), math.radians(90), math.radians(180)),
    Part.LineSegment(Vector(122.8, 96.5, 0), Vector(122.8, 55, 0)),
    Part.ArcOfCircle(Part.Circle(Vector(124.3, 55, 0), Vector(0, 0, 1), 1.5), math.radians(180), math.radians(270)),
    Part.LineSegment(Vector(124.3, 53.5, 0), Vector(183.8, 53.5, 0)),
    Part.ArcOfCircle(Part.Circle(Vector(183.8, 55, 0), Vector(0, 0, 1), 1.5), math.radians(-90), math.radians(0)),
    Part.LineSegment(Vector(185.3, 55, 0), Vector(185.3, 96.5, 0)),
    Part.ArcOfCircle(Part.Circle(Vector(183.8, 96.5, 0), Vector(0, 0, 1), 1.5), math.radians(0), math.radians(90)),
    Part.Circle(Vector(129.5, 60.3, 0), Vector(0, 0, 1), 2.8),
    Part.Circle(Vector(138.8, 60.5, 0), Vector(0, 0, 1), 1.5),
    Part.Circle(Vector(169.3, 60.5, 0), Vector(0, 0, 1), 1.5),
    Part.Circle(Vector(178.5, 60.3, 0), Vector(0, 0, 1), 2.8),
    Part.Circle(Vector(129.5, 91.3, 0), Vector(0, 0, 1), 2.8),
    Part.Circle(Vector(138.8, 91, 0), Vector(0, 0, 1), 1.5),
    Part.Circle(Vector(169.3, 91, 0), Vector(0, 0, 1), 1.5),
    Part.Circle(Vector(178.5, 91.3, 0), Vector(0, 0, 1), 2.8),
], False)
sketch2.addConstraint([
    Sketcher.Constraint("Tangent", 0, 2, 1, 1),
    Sketcher.Constraint("Tangent", 1, 2, 2, 1),
    Sketcher.Constraint("Tangent", 2, 2, 3, 1),
    Sketcher.Constraint("Tangent", 3, 2, 4, 1),
    Sketcher.Constraint("Tangent", 4, 2, 5, 1),
    Sketcher.Constraint("Tangent", 5, 2, 6, 1),
    Sketcher.Constraint("Tangent", 6, 2, 7, 1),
    Sketcher.Constraint("Tangent", 7, 2, 0, 1),
    Sketcher.Constraint("Horizontal", 0),
    Sketcher.Constraint("Vertical", 2),
    Sketcher.Constraint("Horizontal", 4),
    Sketcher.Constraint("Vertical", 6),
    Sketcher.Constraint("Equal", 1, 3),
    Sketcher.Constraint("Equal", 3, 5),
    Sketcher.Constraint("Equal", 5, 7),
    Sketcher.Constraint("Equal", 7, 9),
    Sketcher.Constraint("Equal", 9, 10),
    Sketcher.Constraint("Equal", 8, 11),
    Sketcher.Constraint("Equal", 11, 12),
    Sketcher.Constraint("Equal", 10, 13),
    Sketcher.Constraint("Equal", 13, 14),
    Sketcher.Constraint("Equal", 12, 15),
    Sketcher.Constraint("Horizontal", 9, 3, 10, 3),
    Sketcher.Constraint("Horizontal", 8, 3, 11, 3),
    Sketcher.Constraint("Horizontal", 13, 3, 14, 3),
    Sketcher.Constraint("Horizontal", 12, 3, 15, 3),
    Sketcher.Constraint("Vertical", 8, 3, 12, 3),
    Sketcher.Constraint("Vertical", 9, 3, 13, 3),
    Sketcher.Constraint("Vertical", 10, 3, 14, 3),
    Sketcher.Constraint("Vertical", 11, 3, 15, 3),
    Sketcher.Constraint("Diameter", 9, Q("3 mm")),
    Sketcher.Constraint("Diameter", 8, Q("5.5 mm")),
    Sketcher.Constraint("DistanceX", 0, 2, 0, 1, Q("59.5 mm")),
    Sketcher.Constraint("DistanceY", 2, 2, 2, 1, Q("41.5 mm")),
    Sketcher.Constraint("DistanceY", 9, 3, 1, 3, Q("36 mm")),
    Sketcher.Constraint("DistanceX", 9, 3, 5, 3, Q("45 mm")),
    Sketcher.Constraint("DistanceX", 3, 3, 10, 3, Q("45 mm")),
    Sketcher.Constraint("DistanceX", 8, 3, 11, 3, Q("49 mm")),
    Sketcher.Constraint("DistanceY", 8, 3, 12, 3, Q("31 mm")),
    Sketcher.Constraint("DistanceY", 3, 3, 13, 3, Q("36 mm")),
    Sketcher.Constraint("DistanceX", 3, 3, 8, 3, Q("5.25 mm")),
    Sketcher.Constraint("DistanceY", 3, 3, 8, 3, Q("5.25 mm")),
    Sketcher.Constraint("DistanceX", -1, 1, 1, 3, Q("124.285098 mm")),
    Sketcher.Constraint("DistanceY", -1, 1, 1, 3, Q("96.527281 mm")),
])
pad2 = body2.newObject("PartDesign::Pad", "Pad001")
pad2.Profile = sketch2
pad2.Length = 1

doc.recompute()
